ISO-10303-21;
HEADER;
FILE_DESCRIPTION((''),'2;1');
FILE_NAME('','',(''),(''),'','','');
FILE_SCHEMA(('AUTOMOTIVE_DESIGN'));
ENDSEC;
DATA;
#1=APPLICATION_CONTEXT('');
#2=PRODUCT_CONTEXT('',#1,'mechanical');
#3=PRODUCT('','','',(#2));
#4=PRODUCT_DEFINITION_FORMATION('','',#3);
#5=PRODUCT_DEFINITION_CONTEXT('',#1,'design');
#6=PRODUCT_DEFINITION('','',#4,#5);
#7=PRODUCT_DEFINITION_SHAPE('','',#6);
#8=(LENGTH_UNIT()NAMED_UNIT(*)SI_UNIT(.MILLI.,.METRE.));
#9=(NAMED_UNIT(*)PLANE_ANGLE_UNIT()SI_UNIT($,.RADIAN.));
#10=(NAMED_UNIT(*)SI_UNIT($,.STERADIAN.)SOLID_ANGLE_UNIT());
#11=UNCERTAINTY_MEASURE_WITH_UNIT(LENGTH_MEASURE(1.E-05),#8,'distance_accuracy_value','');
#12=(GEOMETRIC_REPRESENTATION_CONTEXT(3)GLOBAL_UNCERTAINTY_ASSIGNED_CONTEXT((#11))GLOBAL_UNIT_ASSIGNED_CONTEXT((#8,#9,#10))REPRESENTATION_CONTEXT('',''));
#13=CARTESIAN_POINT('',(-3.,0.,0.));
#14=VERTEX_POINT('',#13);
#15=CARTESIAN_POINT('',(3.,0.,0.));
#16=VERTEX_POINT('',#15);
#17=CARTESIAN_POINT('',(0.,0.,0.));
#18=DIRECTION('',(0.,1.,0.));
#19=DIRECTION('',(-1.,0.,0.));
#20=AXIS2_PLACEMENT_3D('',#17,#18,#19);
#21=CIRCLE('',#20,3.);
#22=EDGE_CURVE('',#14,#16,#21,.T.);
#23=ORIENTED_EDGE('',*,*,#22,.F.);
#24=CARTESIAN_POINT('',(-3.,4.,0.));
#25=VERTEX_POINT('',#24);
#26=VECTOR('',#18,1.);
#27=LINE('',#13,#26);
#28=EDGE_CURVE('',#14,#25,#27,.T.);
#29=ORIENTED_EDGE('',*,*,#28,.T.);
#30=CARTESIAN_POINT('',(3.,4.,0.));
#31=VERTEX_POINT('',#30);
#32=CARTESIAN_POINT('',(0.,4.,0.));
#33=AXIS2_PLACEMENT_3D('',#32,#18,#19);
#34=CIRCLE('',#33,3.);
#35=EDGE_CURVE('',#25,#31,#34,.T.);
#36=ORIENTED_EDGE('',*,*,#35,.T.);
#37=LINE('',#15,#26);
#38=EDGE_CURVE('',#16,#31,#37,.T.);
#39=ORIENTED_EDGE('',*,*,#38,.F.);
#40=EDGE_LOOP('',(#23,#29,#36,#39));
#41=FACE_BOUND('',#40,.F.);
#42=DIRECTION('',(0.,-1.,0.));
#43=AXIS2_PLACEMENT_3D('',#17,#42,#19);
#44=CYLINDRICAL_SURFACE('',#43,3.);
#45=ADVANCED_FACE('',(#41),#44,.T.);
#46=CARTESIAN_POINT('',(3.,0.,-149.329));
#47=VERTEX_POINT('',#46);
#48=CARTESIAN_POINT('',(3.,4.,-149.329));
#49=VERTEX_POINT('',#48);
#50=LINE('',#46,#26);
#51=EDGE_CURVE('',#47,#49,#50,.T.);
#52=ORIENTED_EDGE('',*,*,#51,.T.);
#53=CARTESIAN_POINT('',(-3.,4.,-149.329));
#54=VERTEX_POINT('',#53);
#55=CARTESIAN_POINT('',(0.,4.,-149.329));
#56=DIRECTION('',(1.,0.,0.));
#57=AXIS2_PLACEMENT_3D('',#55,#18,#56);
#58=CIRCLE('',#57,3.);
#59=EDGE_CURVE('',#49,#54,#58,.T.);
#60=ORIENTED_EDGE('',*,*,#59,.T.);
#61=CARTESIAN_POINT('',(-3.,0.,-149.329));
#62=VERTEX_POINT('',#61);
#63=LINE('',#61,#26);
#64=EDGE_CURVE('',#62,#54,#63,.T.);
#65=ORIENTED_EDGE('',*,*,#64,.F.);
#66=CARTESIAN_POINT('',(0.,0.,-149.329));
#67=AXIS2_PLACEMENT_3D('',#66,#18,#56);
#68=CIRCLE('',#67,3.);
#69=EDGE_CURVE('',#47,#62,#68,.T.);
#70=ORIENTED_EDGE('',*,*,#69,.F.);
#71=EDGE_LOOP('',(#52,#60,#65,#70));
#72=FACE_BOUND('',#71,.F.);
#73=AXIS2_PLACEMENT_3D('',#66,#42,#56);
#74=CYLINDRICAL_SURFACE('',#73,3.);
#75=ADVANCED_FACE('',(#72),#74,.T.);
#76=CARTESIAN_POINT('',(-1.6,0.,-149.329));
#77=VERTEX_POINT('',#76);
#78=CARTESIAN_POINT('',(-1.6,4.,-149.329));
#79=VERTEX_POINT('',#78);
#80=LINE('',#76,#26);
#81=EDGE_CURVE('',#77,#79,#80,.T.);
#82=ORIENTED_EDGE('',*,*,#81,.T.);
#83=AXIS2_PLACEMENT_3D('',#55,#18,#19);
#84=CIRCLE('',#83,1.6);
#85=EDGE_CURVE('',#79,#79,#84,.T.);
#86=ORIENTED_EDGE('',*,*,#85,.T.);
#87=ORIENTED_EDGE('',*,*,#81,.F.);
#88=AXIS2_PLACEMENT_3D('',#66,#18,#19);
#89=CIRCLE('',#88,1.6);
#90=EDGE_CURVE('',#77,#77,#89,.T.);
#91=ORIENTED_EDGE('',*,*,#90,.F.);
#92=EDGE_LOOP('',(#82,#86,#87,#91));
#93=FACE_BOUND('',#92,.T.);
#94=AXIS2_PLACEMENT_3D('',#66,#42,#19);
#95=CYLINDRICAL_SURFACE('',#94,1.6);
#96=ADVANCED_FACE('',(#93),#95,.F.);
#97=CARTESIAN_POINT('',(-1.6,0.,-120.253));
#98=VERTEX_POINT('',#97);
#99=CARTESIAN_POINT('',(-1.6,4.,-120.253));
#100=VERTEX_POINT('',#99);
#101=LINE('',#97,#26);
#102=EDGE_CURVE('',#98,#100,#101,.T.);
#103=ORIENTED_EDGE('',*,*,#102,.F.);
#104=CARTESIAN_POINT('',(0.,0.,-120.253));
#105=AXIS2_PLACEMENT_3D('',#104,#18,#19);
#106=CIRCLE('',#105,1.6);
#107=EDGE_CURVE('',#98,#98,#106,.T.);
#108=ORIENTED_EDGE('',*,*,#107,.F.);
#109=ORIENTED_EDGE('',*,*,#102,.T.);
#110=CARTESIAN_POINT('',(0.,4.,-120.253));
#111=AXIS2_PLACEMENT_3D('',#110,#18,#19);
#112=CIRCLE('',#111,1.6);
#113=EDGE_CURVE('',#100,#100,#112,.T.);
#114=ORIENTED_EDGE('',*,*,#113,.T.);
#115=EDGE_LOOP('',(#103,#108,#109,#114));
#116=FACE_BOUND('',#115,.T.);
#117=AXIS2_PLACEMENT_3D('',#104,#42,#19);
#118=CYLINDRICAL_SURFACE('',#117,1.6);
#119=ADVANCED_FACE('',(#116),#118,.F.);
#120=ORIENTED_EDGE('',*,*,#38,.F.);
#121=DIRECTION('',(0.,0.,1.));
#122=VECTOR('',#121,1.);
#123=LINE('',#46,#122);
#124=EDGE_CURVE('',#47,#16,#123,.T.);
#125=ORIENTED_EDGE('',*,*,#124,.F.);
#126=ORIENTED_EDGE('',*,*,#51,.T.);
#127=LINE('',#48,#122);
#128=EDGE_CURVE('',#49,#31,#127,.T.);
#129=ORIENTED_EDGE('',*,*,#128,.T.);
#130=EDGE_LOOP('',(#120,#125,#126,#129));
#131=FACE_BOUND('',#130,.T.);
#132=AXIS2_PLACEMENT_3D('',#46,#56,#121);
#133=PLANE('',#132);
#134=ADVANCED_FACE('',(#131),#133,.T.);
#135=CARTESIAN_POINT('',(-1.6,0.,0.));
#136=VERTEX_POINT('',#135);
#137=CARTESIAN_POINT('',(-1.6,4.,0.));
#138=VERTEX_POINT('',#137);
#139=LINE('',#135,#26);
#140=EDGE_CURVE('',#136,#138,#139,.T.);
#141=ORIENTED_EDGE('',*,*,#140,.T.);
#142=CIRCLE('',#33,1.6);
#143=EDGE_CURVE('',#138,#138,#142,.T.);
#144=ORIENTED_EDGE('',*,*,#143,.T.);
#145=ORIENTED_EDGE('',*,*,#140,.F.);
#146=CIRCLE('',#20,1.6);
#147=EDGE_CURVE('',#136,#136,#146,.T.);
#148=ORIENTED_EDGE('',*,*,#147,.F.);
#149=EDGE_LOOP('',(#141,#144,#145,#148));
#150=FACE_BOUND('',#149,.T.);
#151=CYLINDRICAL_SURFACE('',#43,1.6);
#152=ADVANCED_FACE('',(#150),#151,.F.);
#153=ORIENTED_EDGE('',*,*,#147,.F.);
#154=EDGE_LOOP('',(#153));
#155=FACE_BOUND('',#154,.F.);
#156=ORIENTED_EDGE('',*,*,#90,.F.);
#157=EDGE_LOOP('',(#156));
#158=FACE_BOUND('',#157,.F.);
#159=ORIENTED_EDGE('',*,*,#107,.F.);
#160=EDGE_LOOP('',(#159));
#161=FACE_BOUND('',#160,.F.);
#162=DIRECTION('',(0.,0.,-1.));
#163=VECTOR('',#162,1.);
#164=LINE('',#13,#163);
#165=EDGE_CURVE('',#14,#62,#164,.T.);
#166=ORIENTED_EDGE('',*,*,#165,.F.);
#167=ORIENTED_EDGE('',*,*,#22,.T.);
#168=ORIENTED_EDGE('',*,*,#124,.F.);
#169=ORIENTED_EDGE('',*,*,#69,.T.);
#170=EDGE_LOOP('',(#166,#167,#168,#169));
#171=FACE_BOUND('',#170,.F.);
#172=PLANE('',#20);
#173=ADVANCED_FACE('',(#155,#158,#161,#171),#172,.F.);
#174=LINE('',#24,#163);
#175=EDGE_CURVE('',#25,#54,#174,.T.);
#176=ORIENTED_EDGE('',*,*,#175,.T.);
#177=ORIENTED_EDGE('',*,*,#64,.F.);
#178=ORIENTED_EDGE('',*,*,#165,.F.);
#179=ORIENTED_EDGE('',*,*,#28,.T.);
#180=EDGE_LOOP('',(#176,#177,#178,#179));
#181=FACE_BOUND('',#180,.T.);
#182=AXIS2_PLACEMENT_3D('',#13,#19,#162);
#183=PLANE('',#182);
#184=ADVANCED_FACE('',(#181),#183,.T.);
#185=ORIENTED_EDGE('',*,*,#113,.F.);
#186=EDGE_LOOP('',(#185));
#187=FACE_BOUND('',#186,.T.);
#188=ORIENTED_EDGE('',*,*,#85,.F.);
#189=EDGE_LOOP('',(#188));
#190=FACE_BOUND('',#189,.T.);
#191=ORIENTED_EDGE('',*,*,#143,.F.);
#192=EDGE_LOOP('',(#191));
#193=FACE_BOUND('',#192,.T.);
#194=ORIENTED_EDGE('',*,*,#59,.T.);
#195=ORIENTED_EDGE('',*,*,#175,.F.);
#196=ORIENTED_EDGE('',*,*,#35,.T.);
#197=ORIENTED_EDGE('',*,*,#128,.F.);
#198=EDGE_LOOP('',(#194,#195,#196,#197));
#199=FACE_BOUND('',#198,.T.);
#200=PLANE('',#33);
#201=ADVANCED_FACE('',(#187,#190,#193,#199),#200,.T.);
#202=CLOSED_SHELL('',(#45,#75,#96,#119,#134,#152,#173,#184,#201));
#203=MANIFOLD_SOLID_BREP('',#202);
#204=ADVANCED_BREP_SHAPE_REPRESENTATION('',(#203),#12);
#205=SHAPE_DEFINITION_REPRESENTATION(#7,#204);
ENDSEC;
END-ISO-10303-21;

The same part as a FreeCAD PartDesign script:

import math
import FreeCAD as App
import Part
import Sketcher

V = App.Vector

doc = App.newDocument("Part")
params = doc.addObject("Spreadsheet::Sheet", "Params")
for row, (alias, value) in enumerate([
    ("sketch1_radius", "3 mm"),
    ("sketch1_diameter", "3.2 mm"),
    ("pad1_length", "4 mm"),
], start=1):
    params.set(f"A{row}", alias)
    params.set(f"B{row}", "=" + value)
    params.setAlias(f"B{row}", alias)

body = doc.addObject("PartDesign::Body", "Body")

# Sketch on XZ plane
sketch1 = body.newObject("Sketcher::SketchObject", "Sketch")
sketch1.AttachmentSupport = (doc.getObject("XZ_Plane"), [""])
sketch1.MapMode = "FlatFace"
sketch1.addGeometry([
    Part.LineSegment(V(-3, -149.329, 0), V(-3, 0, 0)),  # 0
    Part.ArcOfCircle(Part.Circle(V(0, 0, 0), V(0, 0, 1), 3), math.radians(0), math.radians(180)),  # 1
    Part.LineSegment(V(3, 0, 0), V(3, -149.329, 0)),  # 2
    Part.ArcOfCircle(Part.Circle(V(0, -149.329, 0), V(0, 0, 1), 3), math.radians(180), math.radians(360)),  # 3
    Part.Circle(V(0, -149.329, 0), V(0, 0, 1), 1.6),  # 4
    Part.Circle(V(0, -120.253, 0), V(0, 0, 1), 1.6),  # 5
    Part.Circle(V(0, 0, 0), V(0, 0, 1), 1.6),  # 6
], False)
sketch1.addConstraint([
    Sketcher.Constraint("Tangent", 0, 2, 1, 2),
    Sketcher.Constraint("Tangent", 1, 1, 2, 1),
    Sketcher.Constraint("Tangent", 2, 2, 3, 2),
    Sketcher.Constraint("Tangent", 3, 1, 0, 1),
    Sketcher.Constraint("Vertical", 0),
    Sketcher.Constraint("Vertical", 2),
    Sketcher.Constraint("Coincident", 1, 3, -1, 1),
    Sketcher.Constraint("Coincident", 6, 3, -1, 1),
    Sketcher.Constraint("Coincident", 4, 3, 3, 3),
    Sketcher.Constraint("Equal", 4, 5),
    Sketcher.Constraint("Equal", 5, 6),
    Sketcher.Constraint("PointOnObject", 5, 3, -2),
    Sketcher.Constraint("Radius", 1, 3.0),
    Sketcher.Constraint("Diameter", 4, 3.2),
    Sketcher.Constraint("DistanceY", 0, 1, 0, 2, 149.329),
    Sketcher.Constraint("DistanceY", 5, 3, -1, 1, 120.253),
])
sketch1.setExpression("Constraints[12]", "Params.sketch1_radius")
sketch1.setExpression("Constraints[13]", "Params.sketch1_diameter")
pad1 = body.newObject("PartDesign::Pad", "Pad")
pad1.Profile = sketch1
pad1.setExpression("Length", "Params.pad1_length")
pad1.Reversed = True

doc.recompute()
